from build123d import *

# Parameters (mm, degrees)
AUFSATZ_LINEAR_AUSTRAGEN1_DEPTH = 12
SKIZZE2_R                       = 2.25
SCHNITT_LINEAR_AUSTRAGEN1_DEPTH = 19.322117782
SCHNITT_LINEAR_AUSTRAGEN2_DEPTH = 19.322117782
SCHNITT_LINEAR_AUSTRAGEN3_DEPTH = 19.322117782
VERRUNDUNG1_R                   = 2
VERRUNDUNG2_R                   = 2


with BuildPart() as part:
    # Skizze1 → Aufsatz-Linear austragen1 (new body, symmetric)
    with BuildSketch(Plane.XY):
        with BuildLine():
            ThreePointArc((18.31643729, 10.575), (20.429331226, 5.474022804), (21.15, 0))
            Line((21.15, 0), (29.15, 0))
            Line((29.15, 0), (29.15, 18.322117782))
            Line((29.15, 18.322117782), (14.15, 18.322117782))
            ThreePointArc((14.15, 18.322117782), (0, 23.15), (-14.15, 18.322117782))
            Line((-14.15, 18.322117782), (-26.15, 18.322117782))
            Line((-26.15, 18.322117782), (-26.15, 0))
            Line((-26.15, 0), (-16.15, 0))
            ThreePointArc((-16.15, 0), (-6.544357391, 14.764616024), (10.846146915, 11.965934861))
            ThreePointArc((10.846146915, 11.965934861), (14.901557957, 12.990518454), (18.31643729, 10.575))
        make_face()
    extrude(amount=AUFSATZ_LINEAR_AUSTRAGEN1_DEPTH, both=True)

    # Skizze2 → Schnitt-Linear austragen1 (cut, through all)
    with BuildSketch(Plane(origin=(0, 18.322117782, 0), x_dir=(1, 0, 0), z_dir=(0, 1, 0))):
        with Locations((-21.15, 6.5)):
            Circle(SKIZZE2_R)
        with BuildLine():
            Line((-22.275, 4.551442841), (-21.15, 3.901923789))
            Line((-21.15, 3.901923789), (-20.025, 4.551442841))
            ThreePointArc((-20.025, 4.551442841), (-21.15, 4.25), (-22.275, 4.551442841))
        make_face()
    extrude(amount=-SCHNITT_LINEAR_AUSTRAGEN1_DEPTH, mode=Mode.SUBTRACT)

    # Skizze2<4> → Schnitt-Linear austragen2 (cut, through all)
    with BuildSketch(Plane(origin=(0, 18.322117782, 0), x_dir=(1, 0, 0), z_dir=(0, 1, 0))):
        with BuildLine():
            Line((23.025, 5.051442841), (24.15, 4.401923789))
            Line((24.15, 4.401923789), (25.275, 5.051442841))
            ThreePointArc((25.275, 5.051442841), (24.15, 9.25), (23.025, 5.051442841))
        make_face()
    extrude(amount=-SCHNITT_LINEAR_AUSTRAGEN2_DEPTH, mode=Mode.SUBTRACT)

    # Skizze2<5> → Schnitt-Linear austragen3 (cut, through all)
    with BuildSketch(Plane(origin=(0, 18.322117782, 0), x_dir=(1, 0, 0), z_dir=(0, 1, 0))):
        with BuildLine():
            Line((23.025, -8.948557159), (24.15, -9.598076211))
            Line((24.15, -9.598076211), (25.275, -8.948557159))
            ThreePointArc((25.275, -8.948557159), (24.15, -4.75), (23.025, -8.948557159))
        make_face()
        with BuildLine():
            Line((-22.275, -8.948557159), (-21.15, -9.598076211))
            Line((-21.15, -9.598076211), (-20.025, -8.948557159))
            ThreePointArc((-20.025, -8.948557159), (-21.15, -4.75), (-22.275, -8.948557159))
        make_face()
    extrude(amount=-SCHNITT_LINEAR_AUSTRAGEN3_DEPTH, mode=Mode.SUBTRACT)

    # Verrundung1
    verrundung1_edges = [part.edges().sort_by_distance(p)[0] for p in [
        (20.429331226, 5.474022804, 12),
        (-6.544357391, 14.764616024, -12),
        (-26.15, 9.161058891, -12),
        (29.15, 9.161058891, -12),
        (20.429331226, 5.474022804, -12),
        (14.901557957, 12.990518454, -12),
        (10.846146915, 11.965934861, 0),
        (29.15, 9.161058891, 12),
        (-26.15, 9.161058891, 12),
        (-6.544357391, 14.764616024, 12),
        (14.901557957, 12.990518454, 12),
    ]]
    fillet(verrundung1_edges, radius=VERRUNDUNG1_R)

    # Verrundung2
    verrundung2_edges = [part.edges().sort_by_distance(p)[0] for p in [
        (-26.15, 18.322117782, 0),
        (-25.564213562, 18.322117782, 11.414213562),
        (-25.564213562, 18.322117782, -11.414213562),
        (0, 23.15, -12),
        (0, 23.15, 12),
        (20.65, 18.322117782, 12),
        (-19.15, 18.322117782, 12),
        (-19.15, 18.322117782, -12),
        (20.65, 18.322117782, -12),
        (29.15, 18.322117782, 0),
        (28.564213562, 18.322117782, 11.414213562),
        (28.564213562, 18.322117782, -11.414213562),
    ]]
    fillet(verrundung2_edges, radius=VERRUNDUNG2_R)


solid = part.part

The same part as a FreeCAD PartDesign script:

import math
import FreeCAD as App
import Part
import Sketcher
from FreeCAD import Vector
Q = App.Units.Quantity


def edges_at(feature, points):
    """Names of the edges that pass closest to the given points."""
    edges = feature.Shape.Edges
    near = lambda p: min(range(len(edges)), key=lambda i: edges[i].distToShape(Part.Vertex(*p))[0])
    return sorted({f"Edge{near(p) + 1}" for p in points})

doc = App.newDocument("Part")
params = doc.addObject("Spreadsheet::Sheet", "Params")
for row, (alias, value) in enumerate([
    ("sketch1_radius", "5 mm"),
    ("sketch1_width", "8 mm"),
    ("sketch1_width2", "15 mm"),
    ("sketch1_width3", "12 mm"),
    ("sketch1_width4", "10 mm"),
    ("pad1_length", "24 mm"),
    ("sketch2_radius", "2.25 mm"),
    ("sketch3_radius", "2.25 mm"),
    ("sketch4_radius", "2.25 mm"),
    ("fillet_radius", "2 mm"),
    ("fillet2_radius", "2 mm"),
], start=1):
    params.set(f"A{row}", alias)
    params.set(f"B{row}", "=" + value)
    params.setAlias(f"B{row}", alias)

body = doc.addObject("PartDesign::Body", "Body")

sketch1 = doc.addObject("Sketcher::SketchObject", "Sketch")
body.addObject(sketch1)
sketch1.AttachmentSupport = (doc.XY_Plane, [""])
sketch1.MapMode = "FlatFace"
sketch1.addGeometry([
    Part.ArcOfCircle(Part.Circle(Vector(0, 0, 0), Vector(0, 0, 1), 21.15), math.radians(0), math.radians(30)),
    Part.LineSegment(Vector(21.15, 0, 0), Vector(29.15, 0, 0)),
    Part.LineSegment(Vector(29.15, 0, 0), Vector(29.15, 18.322118, 0)),
    Part.LineSegment(Vector(29.15, 18.322118, 0), Vector(14.15, 18.322118, 0)),
    Part.ArcOfCircle(Part.Circle(Vector(0, 0, 0), Vector(0, 0, 1), 23.15), math.radians(52.321427), math.radians(127.678573)),
    Part.LineSegment(Vector(-14.15, 18.322118, 0), Vector(-26.15, 18.322118, 0)),
    Part.LineSegment(Vector(-26.15, 18.322118, 0), Vector(-26.15, 0, 0)),
    Part.LineSegment(Vector(-26.15, 0, 0), Vector(-16.15, 0, 0)),
    Part.ArcOfCircle(Part.Circle(Vector(0, 0, 0), Vector(0, 0, 1), 16.15), math.radians(47.810251), math.radians(180)),
    Part.ArcOfCircle(Part.Circle(Vector(13.98631, 8.075, 0), Vector(0, 0, 1), 5), math.radians(30), math.radians(128.905125)),
], False)
sketch1.addConstraint([
    Sketcher.Constraint("Coincident", 0, 1, 1, 1),
    Sketcher.Constraint("Coincident", 1, 2, 2, 1),
    Sketcher.Constraint("Coincident", 2, 2, 3, 1),
    Sketcher.Constraint("Coincident", 3, 2, 4, 1),
    Sketcher.Constraint("Coincident", 4, 2, 5, 1),
    Sketcher.Constraint("Coincident", 5, 2, 6, 1),
    Sketcher.Constraint("Coincident", 6, 2, 7, 1),
    Sketcher.Constraint("Coincident", 7, 2, 8, 2),
    Sketcher.Constraint("Coincident", 8, 1, 9, 2),
    Sketcher.Constraint("Tangent", 9, 1, 0, 2),
    Sketcher.Constraint("Horizontal", 1),
    Sketcher.Constraint("Vertical", 2),
    Sketcher.Constraint("Horizontal", 3),
    Sketcher.Constraint("Horizontal", 5),
    Sketcher.Constraint("Vertical", 6),
    Sketcher.Constraint("Horizontal", 7),
    Sketcher.Constraint("Coincident", 0, 3, -1, 1),
    Sketcher.Constraint("Coincident", 4, 3, -1, 1),
    Sketcher.Constraint("Coincident", 8, 3, -1, 1),
    Sketcher.Constraint("PointOnObject", 0, 1, -1),
    Sketcher.Constraint("PointOnObject", 6, 2, -1),
    Sketcher.Constraint("Horizontal", 3, 2, 4, 2),
    Sketcher.Constraint("Radius", 9, 5.0),
    Sketcher.Constraint("DistanceX", 1, 1, 1, 2, 8.0),
    Sketcher.Constraint("DistanceX", 3, 2, 3, 1, 15.0),
    Sketcher.Constraint("DistanceX", 5, 2, 5, 1, 12.0),
    Sketcher.Constraint("DistanceX", 7, 1, 7, 2, 10.0),
    Sketcher.Constraint("Radius", 0, 21.15),
    Sketcher.Constraint("Radius", 4, 23.15),
    Sketcher.Constraint("DistanceY", 9, 3, 9, 1, 2.5),
])
sketch1.setExpression("Constraints[22]", "Params.sketch1_radius")
sketch1.setExpression("Constraints[23]", "Params.sketch1_width")
sketch1.setExpression("Constraints[24]", "Params.sketch1_width2")
sketch1.setExpression("Constraints[25]", "Params.sketch1_width3")
sketch1.setExpression("Constraints[26]", "Params.sketch1_width4")
pad1 = doc.addObject("PartDesign::Pad", "Pad")
body.addObject(pad1)
pad1.Profile = sketch1
pad1.setExpression("Length", "Params.pad1_length")
pad1.Midplane = True

sketch2 = doc.addObject("Sketcher::SketchObject", "Sketch001")
body.addObject(sketch2)
sketch2.AttachmentSupport = (doc.XZ_Plane, [""])
sketch2.MapMode = "FlatFace"
sketch2.AttachmentOffset = App.Placement(Vector(0, 0, -18.322118), App.Rotation())
sketch2.addGeometry([
    Part.LineSegment(Vector(-22.275, -4.551443, 0), Vector(-21.15, -3.901924, 0)),
    Part.LineSegment(Vector(-21.15, -3.901924, 0), Vector(-20.025, -4.551443, 0)),
    Part.ArcOfCircle(Part.Circle(Vector(-21.15, -6.5, 0), Vector(0, 0, 1), 2.25), math.radians(120), math.radians(420)),
], False)
sketch2.addConstraint([
    Sketcher.Constraint("Coincident", 0, 2, 1, 1),
    Sketcher.Constraint("Tangent", 1, 2, 2, 2),
    Sketcher.Constraint("Tangent", 2, 1, 0, 1),
    Sketcher.Constraint("Horizontal", 1, 2, 2, 1),
    Sketcher.Constraint("Angle", 0, Q("30 deg")),
    Sketcher.Constraint("Radius", 2, 2.25),
    Sketcher.Constraint("DistanceY", 2, 3, -1, 1, 6.5),
    Sketcher.Constraint("DistanceX", 2, 3, -1, 1, 21.15),
])
sketch2.setExpression("Constraints[5]", "Params.sketch2_radius")
pocket1 = doc.addObject("PartDesign::Pocket", "Pocket")
body.addObject(pocket1)
pocket1.Profile = sketch2
pocket1.Type = "ThroughAll"
pocket1.Reversed = True

sketch3 = doc.addObject("Sketcher::SketchObject", "Sketch002")
body.addObject(sketch3)
sketch3.AttachmentSupport = (doc.XZ_Plane, [""])
sketch3.MapMode = "FlatFace"
sketch3.AttachmentOffset = App.Placement(Vector(0, 0, -18.322118), App.Rotation())
sketch3.addGeometry([
    Part.LineSegment(Vector(23.025, -5.051443, 0), Vector(24.15, -4.401924, 0)),
    Part.LineSegment(Vector(24.15, -4.401924, 0), Vector(25.275, -5.051443, 0)),
    Part.ArcOfCircle(Part.Circle(Vector(24.15, -7, 0), Vector(0, 0, 1), 2.25), math.radians(120), math.radians(420)),
], False)
sketch3.addConstraint([
    Sketcher.Constraint("Coincident", 0, 2, 1, 1),
    Sketcher.Constraint("Tangent", 1, 2, 2, 2),
    Sketcher.Constraint("Tangent", 2, 1, 0, 1),
    Sketcher.Constraint("Horizontal", 1, 2, 2, 1),
    Sketcher.Constraint("Angle", 0, Q("30 deg")),
    Sketcher.Constraint("Radius", 2, 2.25),
    Sketcher.Constraint("DistanceY", 2, 3, -1, 1, 7.0),
    Sketcher.Constraint("DistanceX", -1, 1, 2, 3, 24.15),
])
sketch3.setExpression("Constraints[5]", "Params.sketch3_radius")
pocket2 = doc.addObject("PartDesign::Pocket", "Pocket001")
body.addObject(pocket2)
pocket2.Profile = sketch3
pocket2.Type = "ThroughAll"
pocket2.Reversed = True

sketch4 = doc.addObject("Sketcher::SketchObject", "Sketch003")
body.addObject(sketch4)
sketch4.AttachmentSupport = (doc.XZ_Plane, [""])
sketch4.MapMode = "FlatFace"
sketch4.AttachmentOffset = App.Placement(Vector(0, 0, -18.322118), App.Rotation())
sketch4.addGeometry([
    Part.LineSegment(Vector(23.025, 8.948557, 0), Vector(24.15, 9.598076, 0)),
    Part.LineSegment(Vector(24.15, 9.598076, 0), Vector(25.275, 8.948557, 0)),
    Part.ArcOfCircle(Part.Circle(Vector(24.15, 7, 0), Vector(0, 0, 1), 2.25), math.radians(120), math.radians(420)),
    Part.LineSegment(Vector(-22.275, 8.948557, 0), Vector(-21.15, 9.598076, 0)),
    Part.LineSegment(Vector(-21.15, 9.598076, 0), Vector(-20.025, 8.948557, 0)),
    Part.ArcOfCircle(Part.Circle(Vector(-21.15, 7, 0), Vector(0, 0, 1), 2.25), math.radians(120), math.radians(420)),
], False)
sketch4.addConstraint([
    Sketcher.Constraint("Coincident", 0, 2, 1, 1),
    Sketcher.Constraint("Tangent", 1, 2, 2, 2),
    Sketcher.Constraint("Tangent", 2, 1, 0, 1),
    Sketcher.Constraint("Coincident", 3, 2, 4, 1),
    Sketcher.Constraint("Tangent", 4, 2, 5, 2),
    Sketcher.Constraint("Tangent", 5, 1, 3, 1),
    Sketcher.Constraint("Equal", 2, 5),
    Sketcher.Constraint("Parallel", 0, 3),
    Sketcher.Constraint("Parallel", 1, 4),
    Sketcher.Constraint("Horizontal", 2, 3, 5, 3),
    Sketcher.Constraint("Horizontal", 1, 2, 2, 1),
    Sketcher.Constraint("Angle", 0, Q("30 deg")),
    Sketcher.Constraint("Radius", 2, 2.25),
    Sketcher.Constraint("DistanceY", -1, 1, 2, 3, 7.0),
    Sketcher.Constraint("DistanceX", 5, 3, 2, 3, 45.3),
    Sketcher.Constraint("DistanceX", -1, 1, 2, 3, 24.15),
])
sketch4.setExpression("Constraints[12]", "Params.sketch4_radius")
pocket3 = doc.addObject("PartDesign::Pocket", "Pocket002")
body.addObject(pocket3)
pocket3.Profile = sketch4
pocket3.Type = "ThroughAll"
pocket3.Reversed = True
doc.recompute()

fillet = doc.addObject("PartDesign::Fillet", "Fillet")
body.addObject(fillet)
fillet.Base = (pocket3, edges_at(pocket3, [
    (20.429, 5.474, 12),
    (-6.544, 14.765, -12),
    (-26.15, 9.161, -12),
    (29.15, 9.161, -12),
    (20.429, 5.474, -12),
    (14.902, 12.991, -12),
    (10.846, 11.966, 0),
    (29.15, 9.161, 12),
    (-26.15, 9.161, 12),
    (-6.544, 14.765, 12),
    (14.902, 12.991, 12),
]))
fillet.setExpression("Radius", "Params.fillet_radius")
doc.recompute()

fillet2 = doc.addObject("PartDesign::Fillet", "Fillet001")
body.addObject(fillet2)
fillet2.Base = (fillet, edges_at(fillet, [
    (-26.15, 18.322, 0),
    (-25.564, 18.322, 11.414),
    (-25.564, 18.322, -11.414),
    (0, 23.15, -12),
    (0, 23.15, 12),
    (20.65, 18.322, 12),
    (-19.15, 18.322, 12),
    (-19.15, 18.322, -12),
    (20.65, 18.322, -12),
    (29.15, 18.322, 0),
    (28.564, 18.322, 11.414),
    (28.564, 18.322, -11.414),
]))
fillet2.setExpression("Radius", "Params.fillet2_radius")

doc.recompute()
